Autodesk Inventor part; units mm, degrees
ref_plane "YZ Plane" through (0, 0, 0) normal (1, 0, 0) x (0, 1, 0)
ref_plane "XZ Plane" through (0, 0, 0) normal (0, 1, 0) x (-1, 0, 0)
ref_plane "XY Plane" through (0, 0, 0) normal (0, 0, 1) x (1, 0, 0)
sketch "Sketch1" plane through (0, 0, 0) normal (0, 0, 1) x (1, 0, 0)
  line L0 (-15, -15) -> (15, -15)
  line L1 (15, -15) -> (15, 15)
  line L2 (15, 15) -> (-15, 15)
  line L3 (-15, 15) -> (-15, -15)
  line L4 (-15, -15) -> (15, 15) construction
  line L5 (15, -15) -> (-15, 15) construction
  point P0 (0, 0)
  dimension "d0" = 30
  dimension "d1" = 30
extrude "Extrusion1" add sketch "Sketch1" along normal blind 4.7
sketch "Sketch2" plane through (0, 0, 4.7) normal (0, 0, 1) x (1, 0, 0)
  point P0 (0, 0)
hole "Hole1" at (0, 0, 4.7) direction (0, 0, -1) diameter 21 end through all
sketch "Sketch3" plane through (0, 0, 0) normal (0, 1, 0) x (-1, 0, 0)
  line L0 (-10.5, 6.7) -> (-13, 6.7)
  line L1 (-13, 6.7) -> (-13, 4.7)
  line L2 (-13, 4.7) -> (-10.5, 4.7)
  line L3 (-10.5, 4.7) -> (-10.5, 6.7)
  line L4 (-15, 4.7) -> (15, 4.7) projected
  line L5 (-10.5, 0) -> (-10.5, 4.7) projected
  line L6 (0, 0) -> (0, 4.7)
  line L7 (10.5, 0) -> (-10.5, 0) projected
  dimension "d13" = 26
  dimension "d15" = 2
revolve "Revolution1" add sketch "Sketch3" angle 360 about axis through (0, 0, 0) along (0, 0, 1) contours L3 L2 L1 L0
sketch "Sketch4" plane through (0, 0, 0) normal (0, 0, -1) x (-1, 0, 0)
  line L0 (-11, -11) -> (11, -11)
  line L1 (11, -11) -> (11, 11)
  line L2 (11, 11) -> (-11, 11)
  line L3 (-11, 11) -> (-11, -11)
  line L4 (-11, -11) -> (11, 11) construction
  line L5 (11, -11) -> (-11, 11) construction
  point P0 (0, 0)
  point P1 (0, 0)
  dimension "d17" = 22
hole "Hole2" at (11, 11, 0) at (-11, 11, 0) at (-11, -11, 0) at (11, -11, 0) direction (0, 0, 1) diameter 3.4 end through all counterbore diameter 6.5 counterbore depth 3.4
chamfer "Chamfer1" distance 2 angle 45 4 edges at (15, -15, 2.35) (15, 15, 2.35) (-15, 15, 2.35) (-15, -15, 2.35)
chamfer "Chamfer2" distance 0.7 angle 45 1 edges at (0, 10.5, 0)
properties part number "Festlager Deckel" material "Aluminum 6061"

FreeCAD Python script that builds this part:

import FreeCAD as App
import Part
import Sketcher
from FreeCAD import Vector


def edges_at(feature, points):
    """Names of the edges that pass closest to the given points."""
    edges = feature.Shape.Edges
    near = lambda p: min(range(len(edges)), key=lambda i: edges[i].distToShape(Part.Vertex(*p))[0])
    return sorted({f"Edge{near(p) + 1}" for p in points})


def add_polygon(sketch, points):
    """Adds a closed chain of lines whose ends are joined by coincident constraints."""
    first, n = sketch.GeometryCount, len(points)
    for a, b in zip(points, points[1:] + points[:1]):
        sketch.addGeometry(Part.LineSegment(App.Vector(*a, 0), App.Vector(*b, 0)), False)
    for i in range(n):
        sketch.addConstraint(Sketcher.Constraint("Coincident", first + i, 2, first + (i + 1) % n, 1))

doc = App.newDocument("Part")
body = doc.addObject("PartDesign::Body", "Body")

sketch1 = doc.addObject("Sketcher::SketchObject", "Sketch")
body.addObject(sketch1)
sketch1.AttachmentSupport = (doc.XY_Plane, [""])
sketch1.MapMode = "FlatFace"
add_polygon(sketch1, [(-15, 15), (-15, -15), (15, -15), (15, 15)])
sketch1.addConstraint(Sketcher.Constraint("Vertical", 0))
sketch1.addConstraint(Sketcher.Constraint("Horizontal", 1))
sketch1.addConstraint(Sketcher.Constraint("Vertical", 2))
sketch1.addConstraint(Sketcher.Constraint("Horizontal", 3))
sketch1.addConstraint(Sketcher.Constraint("Symmetric", 0, 2, 2, 2, -1, 1))
sketch1.addConstraint(Sketcher.Constraint("Equal", 3, 0))
sketch1.addConstraint(Sketcher.Constraint("DistanceX", 1, 1, 1, 2, 30.0))
pad1 = doc.addObject("PartDesign::Pad", "Pad")
body.addObject(pad1)
pad1.Profile = sketch1
pad1.Length = 4.7

sketch2 = doc.addObject("Sketcher::SketchObject", "Sketch001")
body.addObject(sketch2)
sketch2.AttachmentSupport = (doc.XY_Plane, [""])
sketch2.MapMode = "FlatFace"
sketch2.AttachmentOffset = App.Placement(Vector(0, 0, 4.7), App.Rotation())
sketch2.addGeometry(Part.Circle(Vector(0, 0, 0), Vector(0, 0, 1), 10), False)
sketch2.addConstraint(Sketcher.Constraint("Coincident", 0, 3, -1, 1))
sketch2.addConstraint(Sketcher.Constraint("Diameter", 0, 21.0))
doc.recompute()
hole = doc.addObject("PartDesign::Hole", "Hole")
body.addObject(hole)
hole.Profile = sketch2
hole.ThreadType = "None"
hole.Diameter = 21
hole.DepthType = "ThroughAll"

sketch3 = doc.addObject("Sketcher::SketchObject", "Sketch002")
body.addObject(sketch3)
sketch3.AttachmentSupport = (doc.XZ_Plane, [""])
sketch3.MapMode = "FlatFace"
add_polygon(sketch3, [(10.5, 4.7), (10.5, 6.7), (13, 6.7), (13, 4.7)])
sketch3.addConstraint(Sketcher.Constraint("Vertical", 0))
sketch3.addConstraint(Sketcher.Constraint("Horizontal", 1))
sketch3.addConstraint(Sketcher.Constraint("Vertical", 2))
sketch3.addConstraint(Sketcher.Constraint("Horizontal", 3))
sketch3.addConstraint(Sketcher.Constraint("DistanceY", 0, 1, 0, 2, 2.0))
sketch3.addConstraint(Sketcher.Constraint("DistanceX", 1, 1, 1, 2, 2.5))
sketch3.addConstraint(Sketcher.Constraint("DistanceX", -1, 1, 1, 2, 13.0))
sketch3.addConstraint(Sketcher.Constraint("DistanceY", -1, 1, 0, 2, 6.7))
revolution = doc.addObject("PartDesign::Revolution", "Revolution")
body.addObject(revolution)
revolution.Profile = sketch3
revolution.ReferenceAxis = (sketch3, ["V_Axis"])
revolution.Angle = 360

sketch4 = doc.addObject("Sketcher::SketchObject", "Sketch003")
body.addObject(sketch4)
sketch4.AttachmentSupport = (doc.XY_Plane, [""])
sketch4.MapMode = "FlatFace"
sketch4.addGeometry(Part.Circle(Vector(11, 11, 0), Vector(0, 0, 1), 1.7), False)
sketch4.addGeometry(Part.Circle(Vector(-11, 11, 0), Vector(0, 0, 1), 1.7), False)
sketch4.addGeometry(Part.Circle(Vector(-11, -11, 0), Vector(0, 0, 1), 1.7), False)
sketch4.addGeometry(Part.Circle(Vector(11, -11, 0), Vector(0, 0, 1), 1.7), False)
sketch4.addConstraint(Sketcher.Constraint("Equal", 0, 1))
sketch4.addConstraint(Sketcher.Constraint("Equal", 1, 2))
sketch4.addConstraint(Sketcher.Constraint("Equal", 2, 3))
sketch4.addConstraint(Sketcher.Constraint("Symmetric", 0, 3, 2, 3, -1, 1))
sketch4.addConstraint(Sketcher.Constraint("Symmetric", 1, 3, 3, 3, -1, 1))
sketch4.addConstraint(Sketcher.Constraint("Symmetric", 0, 3, 1, 3, -2))
sketch4.addConstraint(Sketcher.Constraint("Diameter", 0, 3.4))
sketch4.addConstraint(Sketcher.Constraint("DistanceX", -1, 1, 0, 3, 11.0))
sketch4.addConstraint(Sketcher.Constraint("DistanceY", -1, 1, 0, 3, 11.0))
doc.recompute()
hole2 = doc.addObject("PartDesign::Hole", "Hole001")
body.addObject(hole2)
hole2.Profile = sketch4
hole2.ThreadType = "None"
hole2.Diameter = 3.4
hole2.DepthType = "ThroughAll"
hole2.HoleCutType = "Counterbore"
hole2.HoleCutDiameter = 6.5
hole2.HoleCutDepth = 3.4
hole2.Reversed = True
doc.recompute()

chamfer = doc.addObject("PartDesign::Chamfer", "Chamfer")
body.addObject(chamfer)
chamfer.Base = (hole2, edges_at(hole2, [
    (15, -15, 2.35),
    (15, 15, 2.35),
    (-15, 15, 2.35),
    (-15, -15, 2.35),
]))
chamfer.Size = 2
doc.recompute()

chamfer2 = doc.addObject("PartDesign::Chamfer", "Chamfer001")
body.addObject(chamfer2)
chamfer2.Base = (chamfer, edges_at(chamfer, [(0, 10.5, 0)]))
chamfer2.Size = 0.7

doc.recompute()
